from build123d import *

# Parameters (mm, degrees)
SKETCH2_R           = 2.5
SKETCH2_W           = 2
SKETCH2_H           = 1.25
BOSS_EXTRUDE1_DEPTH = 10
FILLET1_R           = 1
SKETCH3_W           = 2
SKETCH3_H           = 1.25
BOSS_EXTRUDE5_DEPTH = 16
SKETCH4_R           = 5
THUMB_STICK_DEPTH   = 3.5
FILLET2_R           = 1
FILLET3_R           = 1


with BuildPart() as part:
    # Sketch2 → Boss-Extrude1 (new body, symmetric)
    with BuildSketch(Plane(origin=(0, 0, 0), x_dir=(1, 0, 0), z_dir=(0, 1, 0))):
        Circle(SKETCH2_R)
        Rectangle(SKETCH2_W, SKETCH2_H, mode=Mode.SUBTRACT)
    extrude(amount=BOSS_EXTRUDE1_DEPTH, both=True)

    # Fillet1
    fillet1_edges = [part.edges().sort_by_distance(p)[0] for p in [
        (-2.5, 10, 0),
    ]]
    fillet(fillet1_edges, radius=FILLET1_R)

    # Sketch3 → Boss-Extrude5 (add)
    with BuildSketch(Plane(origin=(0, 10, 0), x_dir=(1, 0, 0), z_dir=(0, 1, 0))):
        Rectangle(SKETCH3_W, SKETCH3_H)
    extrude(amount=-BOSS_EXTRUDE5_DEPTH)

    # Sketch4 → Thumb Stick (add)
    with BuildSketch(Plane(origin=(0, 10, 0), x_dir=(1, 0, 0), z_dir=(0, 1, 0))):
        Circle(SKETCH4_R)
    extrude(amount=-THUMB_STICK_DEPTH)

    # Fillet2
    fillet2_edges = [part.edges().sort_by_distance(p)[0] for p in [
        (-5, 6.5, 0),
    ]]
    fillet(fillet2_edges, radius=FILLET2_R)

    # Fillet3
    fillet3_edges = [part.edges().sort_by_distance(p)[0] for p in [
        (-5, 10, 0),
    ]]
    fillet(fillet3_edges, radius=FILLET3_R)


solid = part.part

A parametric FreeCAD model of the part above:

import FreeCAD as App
import Part
import Sketcher

V = App.Vector
Q = App.Units.Quantity


def edges_at(feature, points):
    """Names of the edges that pass closest to the given points."""
    edges = feature.Shape.Edges
    near = lambda p: min(range(len(edges)), key=lambda i: edges[i].distToShape(Part.Vertex(*p))[0])
    return sorted({f"Edge{near(p) + 1}" for p in points})

doc = App.newDocument("Part")
body = doc.addObject("PartDesign::Body", "Body")

sketch1 = doc.addObject("Sketcher::SketchObject", "Sketch")
body.addObject(sketch1)
sketch1.AttachmentSupport = (doc.XZ_Plane, [""])
sketch1.MapMode = "FlatFace"
sketch1.addGeometry(Part.Circle(V(0, 0, 0), V(0, 0, 1), 2.5), False)
sketch1.addGeometry(Part.LineSegment(V(1, 0.6, 0), V(-1, 0.6, 0)), False)
sketch1.addGeometry(Part.LineSegment(V(-1, 0.6, 0), V(-1, -0.6, 0)), False)
sketch1.addGeometry(Part.LineSegment(V(-1, -0.6, 0), V(1, -0.6, 0)), False)
sketch1.addGeometry(Part.LineSegment(V(1, -0.6, 0), V(1, 0.6, 0)), False)
sketch1.addConstraint(Sketcher.Constraint("Coincident", 1, 2, 2, 1))
sketch1.addConstraint(Sketcher.Constraint("Coincident", 2, 2, 3, 1))
sketch1.addConstraint(Sketcher.Constraint("Coincident", 3, 2, 4, 1))
sketch1.addConstraint(Sketcher.Constraint("Coincident", 4, 2, 1, 1))
sketch1.addConstraint(Sketcher.Constraint("Horizontal", 1))
sketch1.addConstraint(Sketcher.Constraint("Vertical", 2))
sketch1.addConstraint(Sketcher.Constraint("Horizontal", 3))
sketch1.addConstraint(Sketcher.Constraint("Vertical", 4))
sketch1.addConstraint(Sketcher.Constraint("Coincident", 0, 3, -1, 1))
sketch1.addConstraint(Sketcher.Constraint("Symmetric", 1, 2, 3, 2, -1, 1))
sketch1.addConstraint(Sketcher.Constraint("Diameter", 0, Q("5 mm")))
sketch1.addConstraint(Sketcher.Constraint("DistanceX", 1, 2, 1, 1, Q("2 mm")))
sketch1.addConstraint(Sketcher.Constraint("DistanceY", 2, 2, 2, 1, Q("1.25 mm")))
pad1 = doc.addObject("PartDesign::Pad", "Pad")
body.addObject(pad1)
pad1.Profile = sketch1
pad1.Length = 20
pad1.Midplane = True
doc.recompute()

fillet = doc.addObject("PartDesign::Fillet", "Fillet")
body.addObject(fillet)
fillet.Base = (pad1, edges_at(pad1, [(-2.5, 10, 0)]))
fillet.Radius = 1

sketch2 = doc.addObject("Sketcher::SketchObject", "Sketch001")
body.addObject(sketch2)
sketch2.AttachmentSupport = (doc.XZ_Plane, [""])
sketch2.MapMode = "FlatFace"
sketch2.AttachmentOffset = App.Placement(V(0, 0, -10), App.Rotation())
sketch2.addGeometry(Part.LineSegment(V(-1, -0.6, 0), V(-1, 0.6, 0)), False)
sketch2.addGeometry(Part.LineSegment(V(-1, 0.6, 0), V(1, 0.6, 0)), False)
sketch2.addGeometry(Part.LineSegment(V(1, 0.6, 0), V(1, -0.6, 0)), False)
sketch2.addGeometry(Part.LineSegment(V(1, -0.6, 0), V(-1, -0.6, 0)), False)
sketch2.addConstraint(Sketcher.Constraint("Coincident", 0, 2, 1, 1))
sketch2.addConstraint(Sketcher.Constraint("Coincident", 1, 2, 2, 1))
sketch2.addConstraint(Sketcher.Constraint("Coincident", 2, 2, 3, 1))
sketch2.addConstraint(Sketcher.Constraint("Coincident", 3, 2, 0, 1))
sketch2.addConstraint(Sketcher.Constraint("Vertical", 0))
sketch2.addConstraint(Sketcher.Constraint("Horizontal", 1))
sketch2.addConstraint(Sketcher.Constraint("Vertical", 2))
sketch2.addConstraint(Sketcher.Constraint("Horizontal", 3))
sketch2.addConstraint(Sketcher.Constraint("Symmetric", 0, 2, 2, 2, -1, 1))
sketch2.addConstraint(Sketcher.Constraint("DistanceX", 1, 1, 1, 2, Q("2 mm")))
sketch2.addConstraint(Sketcher.Constraint("DistanceY", 0, 1, 0, 2, Q("1.25 mm")))
pad2 = doc.addObject("PartDesign::Pad", "Pad001")
body.addObject(pad2)
pad2.Profile = sketch2
pad2.Length = 16

sketch3 = doc.addObject("Sketcher::SketchObject", "Sketch002")
body.addObject(sketch3)
sketch3.AttachmentSupport = (doc.XZ_Plane, [""])
sketch3.MapMode = "FlatFace"
sketch3.AttachmentOffset = App.Placement(V(0, 0, -10), App.Rotation())
sketch3.addGeometry(Part.Circle(V(0, 0, 0), V(0, 0, 1), 5), False)
sketch3.addConstraint(Sketcher.Constraint("Coincident", 0, 3, -1, 1))
sketch3.addConstraint(Sketcher.Constraint("Diameter", 0, Q("10 mm")))
pad3 = doc.addObject("PartDesign::Pad", "Pad002")
body.addObject(pad3)
pad3.Profile = sketch3
pad3.Length = 3.5
doc.recompute()

fillet2 = doc.addObject("PartDesign::Fillet", "Fillet001")
body.addObject(fillet2)
fillet2.Base = (pad3, edges_at(pad3, [(-5, 6.5, 0)]))
fillet2.Radius = 1
doc.recompute()

fillet3 = doc.addObject("PartDesign::Fillet", "Fillet002")
body.addObject(fillet3)
fillet3.Base = (fillet2, edges_at(fillet2, [(-5, 10, 0)]))
fillet3.Radius = 1

doc.recompute()
